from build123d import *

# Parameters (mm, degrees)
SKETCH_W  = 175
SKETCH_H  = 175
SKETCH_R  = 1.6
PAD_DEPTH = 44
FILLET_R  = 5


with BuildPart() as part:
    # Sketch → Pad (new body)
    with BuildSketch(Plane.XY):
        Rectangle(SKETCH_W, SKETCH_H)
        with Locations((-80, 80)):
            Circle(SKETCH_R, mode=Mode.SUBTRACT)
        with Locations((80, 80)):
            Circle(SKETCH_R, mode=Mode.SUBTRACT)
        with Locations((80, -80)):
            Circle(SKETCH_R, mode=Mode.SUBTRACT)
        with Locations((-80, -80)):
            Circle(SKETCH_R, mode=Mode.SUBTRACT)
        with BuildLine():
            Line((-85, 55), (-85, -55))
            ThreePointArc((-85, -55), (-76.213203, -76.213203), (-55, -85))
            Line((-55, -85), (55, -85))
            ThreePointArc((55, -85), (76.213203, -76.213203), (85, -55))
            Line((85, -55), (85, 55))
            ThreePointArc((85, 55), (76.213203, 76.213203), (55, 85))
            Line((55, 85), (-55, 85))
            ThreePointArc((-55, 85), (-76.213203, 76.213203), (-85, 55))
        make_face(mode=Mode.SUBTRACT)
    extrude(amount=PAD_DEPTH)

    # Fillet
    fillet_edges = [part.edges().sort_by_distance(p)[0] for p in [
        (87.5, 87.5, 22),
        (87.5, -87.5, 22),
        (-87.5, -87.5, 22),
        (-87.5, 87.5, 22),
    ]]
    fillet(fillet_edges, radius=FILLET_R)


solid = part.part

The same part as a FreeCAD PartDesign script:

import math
import FreeCAD as App
import Part
import Sketcher

V = App.Vector


def edges_at(feature, points):
    """Names of the edges that pass closest to the given points."""
    edges = feature.Shape.Edges
    near = lambda p: min(range(len(edges)), key=lambda i: edges[i].distToShape(Part.Vertex(*p))[0])
    return sorted({f"Edge{near(p) + 1}" for p in points})


def add_polygon(sketch, points):
    """Adds a closed chain of lines whose ends are joined by coincident constraints."""
    first, n = sketch.GeometryCount, len(points)
    for a, b in zip(points, points[1:] + points[:1]):
        sketch.addGeometry(Part.LineSegment(App.Vector(*a, 0), App.Vector(*b, 0)), False)
    for i in range(n):
        sketch.addConstraint(Sketcher.Constraint("Coincident", first + i, 2, first + (i + 1) % n, 1))

doc = App.newDocument("Part")
body = doc.addObject("PartDesign::Body", "Body")

# Sketch on XY plane
sketch1 = body.newObject("Sketcher::SketchObject", "Sketch")
sketch1.AttachmentSupport = (doc.getObject("XY_Plane"), [""])
sketch1.MapMode = "FlatFace"
add_polygon(sketch1, [(-87.5, 87.5), (-87.5, -87.5), (87.5, -87.5), (87.5, 87.5)])  # lines 0-3
sketch1.addGeometry(Part.Circle(V(-80, -80, 0), V(0, 0, 1), 1.6), False)  # 4
sketch1.addGeometry(Part.Circle(V(80, -80, 0), V(0, 0, 1), 1.6), False)  # 5
sketch1.addGeometry(Part.Circle(V(-80, 80, 0), V(0, 0, 1), 1.6), False)  # 6
sketch1.addGeometry(Part.LineSegment(V(-85, -55, 0), V(-85, 55, 0)), False)  # 7
sketch1.addGeometry(Part.ArcOfCircle(Part.Circle(V(-55, 55, 0), V(0, 0, 1), 30), math.radians(90), math.radians(180)), False)  # 8
sketch1.addGeometry(Part.LineSegment(V(-55, 85, 0), V(55, 85, 0)), False)  # 9
sketch1.addGeometry(Part.ArcOfCircle(Part.Circle(V(55, 55, 0), V(0, 0, 1), 30), math.radians(0), math.radians(90)), False)  # 10
sketch1.addGeometry(Part.LineSegment(V(85, 55, 0), V(85, -55, 0)), False)  # 11
sketch1.addGeometry(Part.ArcOfCircle(Part.Circle(V(55, -55, 0), V(0, 0, 1), 30), math.radians(-90), math.radians(0)), False)  # 12
sketch1.addGeometry(Part.LineSegment(V(55, -85, 0), V(-55, -85, 0)), False)  # 13
sketch1.addGeometry(Part.ArcOfCircle(Part.Circle(V(-55, -55, 0), V(0, 0, 1), 30), math.radians(-180), math.radians(-90)), False)  # 14
sketch1.addGeometry(Part.Circle(V(80, 80, 0), V(0, 0, 1), 1.6), False)  # 15
sketch1.addConstraint([
    Sketcher.Constraint("Tangent", 7, 2, 8, 2),
    Sketcher.Constraint("Tangent", 8, 1, 9, 1),
    Sketcher.Constraint("Tangent", 9, 2, 10, 2),
    Sketcher.Constraint("Tangent", 10, 1, 11, 1),
    Sketcher.Constraint("Tangent", 11, 2, 12, 2),
    Sketcher.Constraint("Tangent", 12, 1, 13, 1),
    Sketcher.Constraint("Tangent", 13, 2, 14, 2),
    Sketcher.Constraint("Tangent", 14, 1, 7, 1),
    Sketcher.Constraint("Vertical", 0),
    Sketcher.Constraint("Horizontal", 1),
    Sketcher.Constraint("Vertical", 2),
    Sketcher.Constraint("Horizontal", 3),
    Sketcher.Constraint("Vertical", 7),
    Sketcher.Constraint("Horizontal", 9),
    Sketcher.Constraint("Vertical", 11),
    Sketcher.Constraint("Horizontal", 13),
    Sketcher.Constraint("Equal", 4, 5),
    Sketcher.Constraint("Equal", 5, 6),
    Sketcher.Constraint("Equal", 8, 10),
    Sketcher.Constraint("Equal", 10, 12),
    Sketcher.Constraint("Equal", 12, 14),
    Sketcher.Constraint("Equal", 6, 15),
    Sketcher.Constraint("Symmetric", 5, 3, 6, 3, -1, 1),
    Sketcher.Constraint("Symmetric", 8, 3, 12, 3, -1, 1),
    Sketcher.Constraint("Symmetric", 4, 3, 15, 3, -1, 1),
    Sketcher.Constraint("Symmetric", 0, 2, 2, 2, -1, 1),
    Sketcher.Constraint("Symmetric", 4, 3, 5, 3, -2),
    Sketcher.Constraint("Equal", 3, 0),
    Sketcher.Constraint("Equal", 13, 7),
    Sketcher.Constraint("Radius", 8, 30.000001),
    Sketcher.Constraint("Diameter", 4, 3.2),
    Sketcher.Constraint("DistanceX", 1, 1, 1, 2, 175.0),
    Sketcher.Constraint("DistanceX", 9, 1, 9, 2, 110.0),
    Sketcher.Constraint("DistanceX", 4, 3, -1, 1, 80.0),
    Sketcher.Constraint("DistanceY", 4, 3, -1, 1, 80.0),
])
pad1 = body.newObject("PartDesign::Pad", "Pad")
pad1.Profile = sketch1
pad1.Length = 44
doc.recompute()

fillet = body.newObject("PartDesign::Fillet", "Fillet")
fillet.Base = (pad1, edges_at(pad1, [
    (87.5, 87.5, 22),
    (87.5, -87.5, 22),
    (-87.5, -87.5, 22),
    (-87.5, 87.5, 22),
]))
fillet.Radius = 5

doc.recompute()
